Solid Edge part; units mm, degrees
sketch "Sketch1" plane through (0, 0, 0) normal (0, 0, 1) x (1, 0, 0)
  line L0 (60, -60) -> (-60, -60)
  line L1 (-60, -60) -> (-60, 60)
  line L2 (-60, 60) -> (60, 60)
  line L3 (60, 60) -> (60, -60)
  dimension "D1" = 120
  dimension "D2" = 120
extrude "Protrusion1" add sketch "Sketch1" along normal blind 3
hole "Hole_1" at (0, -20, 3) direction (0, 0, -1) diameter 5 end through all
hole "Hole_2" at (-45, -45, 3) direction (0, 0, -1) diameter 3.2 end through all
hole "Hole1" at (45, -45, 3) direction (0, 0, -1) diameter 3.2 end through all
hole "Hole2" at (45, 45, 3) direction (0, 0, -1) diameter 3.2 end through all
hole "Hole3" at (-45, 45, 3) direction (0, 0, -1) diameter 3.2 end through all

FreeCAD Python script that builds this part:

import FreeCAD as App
import Part
import Sketcher
from FreeCAD import Vector

doc = App.newDocument("Part")
body = doc.addObject("PartDesign::Body", "Body")

sketch1 = doc.addObject("Sketcher::SketchObject", "Sketch")
body.addObject(sketch1)
sketch1.AttachmentSupport = (doc.XY_Plane, [""])
sketch1.MapMode = "FlatFace"
sketch1.addGeometry([
    Part.LineSegment(Vector(-60, -60, 0), Vector(60, -60, 0)),
    Part.LineSegment(Vector(60, -60, 0), Vector(60, 60, 0)),
    Part.LineSegment(Vector(60, 60, 0), Vector(-60, 60, 0)),
    Part.LineSegment(Vector(-60, 60, 0), Vector(-60, -60, 0)),
], False)
sketch1.addConstraint([
    Sketcher.Constraint("Coincident", 0, 2, 1, 1),
    Sketcher.Constraint("Coincident", 1, 2, 2, 1),
    Sketcher.Constraint("Coincident", 2, 2, 3, 1),
    Sketcher.Constraint("Coincident", 3, 2, 0, 1),
    Sketcher.Constraint("Horizontal", 0),
    Sketcher.Constraint("Vertical", 1),
    Sketcher.Constraint("Horizontal", 2),
    Sketcher.Constraint("Vertical", 3),
    Sketcher.Constraint("Symmetric", 0, 2, 2, 2, -1, 1),
    Sketcher.Constraint("Equal", 2, 1),
    Sketcher.Constraint("DistanceX", -1, 1, 0, 2, 60.0),
])
pad1 = doc.addObject("PartDesign::Pad", "Pad")
body.addObject(pad1)
pad1.Profile = sketch1
pad1.Length = 3

sketch2 = doc.addObject("Sketcher::SketchObject", "Sketch001")
body.addObject(sketch2)
sketch2.AttachmentSupport = (doc.XY_Plane, [""])
sketch2.MapMode = "FlatFace"
sketch2.AttachmentOffset = App.Placement(Vector(0, 0, 3), App.Rotation())
sketch2.addGeometry(Part.Circle(Vector(0, -20, 0), Vector(0, 0, 1), 2.5), False)
sketch2.addConstraint([
    Sketcher.Constraint("PointOnObject", 0, 3, -2),
    Sketcher.Constraint("Diameter", 0, 5.0),
    Sketcher.Constraint("DistanceY", 0, 3, -1, 1, 20.0),
])
doc.recompute()
hole = doc.addObject("PartDesign::Hole", "Hole")
body.addObject(hole)
hole.Profile = sketch2
hole.ThreadType = "None"
hole.Diameter = 5
hole.DepthType = "ThroughAll"

sketch3 = doc.addObject("Sketcher::SketchObject", "Sketch002")
body.addObject(sketch3)
sketch3.AttachmentSupport = (doc.XY_Plane, [""])
sketch3.MapMode = "FlatFace"
sketch3.AttachmentOffset = App.Placement(Vector(0, 0, 3), App.Rotation())
sketch3.addGeometry(Part.Circle(Vector(-45, -45, 0), Vector(0, 0, 1), 1.6), False)
sketch3.addConstraint([
    Sketcher.Constraint("Diameter", 0, 3.2),
    Sketcher.Constraint("DistanceX", 0, 3, -1, 1, 45.0),
    Sketcher.Constraint("DistanceY", 0, 3, -1, 1, 45.0),
])
doc.recompute()
hole2 = doc.addObject("PartDesign::Hole", "Hole001")
body.addObject(hole2)
hole2.Profile = sketch3
hole2.ThreadType = "None"
hole2.Diameter = 3.2
hole2.DepthType = "ThroughAll"

sketch4 = doc.addObject("Sketcher::SketchObject", "Sketch003")
body.addObject(sketch4)
sketch4.AttachmentSupport = (doc.XY_Plane, [""])
sketch4.MapMode = "FlatFace"
sketch4.AttachmentOffset = App.Placement(Vector(0, 0, 3), App.Rotation())
sketch4.addGeometry(Part.Circle(Vector(45, -45, 0), Vector(0, 0, 1), 1.6), False)
sketch4.addConstraint([
    Sketcher.Constraint("Diameter", 0, 3.2),
    Sketcher.Constraint("DistanceX", -1, 1, 0, 3, 45.0),
    Sketcher.Constraint("DistanceY", 0, 3, -1, 1, 45.0),
])
doc.recompute()
hole3 = doc.addObject("PartDesign::Hole", "Hole002")
body.addObject(hole3)
hole3.Profile = sketch4
hole3.ThreadType = "None"
hole3.Diameter = 3.2
hole3.DepthType = "ThroughAll"

sketch5 = doc.addObject("Sketcher::SketchObject", "Sketch004")
body.addObject(sketch5)
sketch5.AttachmentSupport = (doc.XY_Plane, [""])
sketch5.MapMode = "FlatFace"
sketch5.AttachmentOffset = App.Placement(Vector(0, 0, 3), App.Rotation())
sketch5.addGeometry(Part.Circle(Vector(45, 45, 0), Vector(0, 0, 1), 1.6), False)
sketch5.addConstraint([
    Sketcher.Constraint("Diameter", 0, 3.2),
    Sketcher.Constraint("DistanceX", -1, 1, 0, 3, 45.0),
    Sketcher.Constraint("DistanceY", -1, 1, 0, 3, 45.0),
])
doc.recompute()
hole4 = doc.addObject("PartDesign::Hole", "Hole003")
body.addObject(hole4)
hole4.Profile = sketch5
hole4.ThreadType = "None"
hole4.Diameter = 3.2
hole4.DepthType = "ThroughAll"

sketch6 = doc.addObject("Sketcher::SketchObject", "Sketch005")
body.addObject(sketch6)
sketch6.AttachmentSupport = (doc.XY_Plane, [""])
sketch6.MapMode = "FlatFace"
sketch6.AttachmentOffset = App.Placement(Vector(0, 0, 3), App.Rotation())
sketch6.addGeometry(Part.Circle(Vector(-45, 45, 0), Vector(0, 0, 1), 1.6), False)
sketch6.addConstraint([
    Sketcher.Constraint("Diameter", 0, 3.2),
    Sketcher.Constraint("DistanceX", 0, 3, -1, 1, 45.0),
    Sketcher.Constraint("DistanceY", -1, 1, 0, 3, 45.0),
])
doc.recompute()
hole5 = doc.addObject("PartDesign::Hole", "Hole004")
body.addObject(hole5)
hole5.Profile = sketch6
hole5.ThreadType = "None"
hole5.Diameter = 3.2
hole5.DepthType = "ThroughAll"

doc.recompute()
